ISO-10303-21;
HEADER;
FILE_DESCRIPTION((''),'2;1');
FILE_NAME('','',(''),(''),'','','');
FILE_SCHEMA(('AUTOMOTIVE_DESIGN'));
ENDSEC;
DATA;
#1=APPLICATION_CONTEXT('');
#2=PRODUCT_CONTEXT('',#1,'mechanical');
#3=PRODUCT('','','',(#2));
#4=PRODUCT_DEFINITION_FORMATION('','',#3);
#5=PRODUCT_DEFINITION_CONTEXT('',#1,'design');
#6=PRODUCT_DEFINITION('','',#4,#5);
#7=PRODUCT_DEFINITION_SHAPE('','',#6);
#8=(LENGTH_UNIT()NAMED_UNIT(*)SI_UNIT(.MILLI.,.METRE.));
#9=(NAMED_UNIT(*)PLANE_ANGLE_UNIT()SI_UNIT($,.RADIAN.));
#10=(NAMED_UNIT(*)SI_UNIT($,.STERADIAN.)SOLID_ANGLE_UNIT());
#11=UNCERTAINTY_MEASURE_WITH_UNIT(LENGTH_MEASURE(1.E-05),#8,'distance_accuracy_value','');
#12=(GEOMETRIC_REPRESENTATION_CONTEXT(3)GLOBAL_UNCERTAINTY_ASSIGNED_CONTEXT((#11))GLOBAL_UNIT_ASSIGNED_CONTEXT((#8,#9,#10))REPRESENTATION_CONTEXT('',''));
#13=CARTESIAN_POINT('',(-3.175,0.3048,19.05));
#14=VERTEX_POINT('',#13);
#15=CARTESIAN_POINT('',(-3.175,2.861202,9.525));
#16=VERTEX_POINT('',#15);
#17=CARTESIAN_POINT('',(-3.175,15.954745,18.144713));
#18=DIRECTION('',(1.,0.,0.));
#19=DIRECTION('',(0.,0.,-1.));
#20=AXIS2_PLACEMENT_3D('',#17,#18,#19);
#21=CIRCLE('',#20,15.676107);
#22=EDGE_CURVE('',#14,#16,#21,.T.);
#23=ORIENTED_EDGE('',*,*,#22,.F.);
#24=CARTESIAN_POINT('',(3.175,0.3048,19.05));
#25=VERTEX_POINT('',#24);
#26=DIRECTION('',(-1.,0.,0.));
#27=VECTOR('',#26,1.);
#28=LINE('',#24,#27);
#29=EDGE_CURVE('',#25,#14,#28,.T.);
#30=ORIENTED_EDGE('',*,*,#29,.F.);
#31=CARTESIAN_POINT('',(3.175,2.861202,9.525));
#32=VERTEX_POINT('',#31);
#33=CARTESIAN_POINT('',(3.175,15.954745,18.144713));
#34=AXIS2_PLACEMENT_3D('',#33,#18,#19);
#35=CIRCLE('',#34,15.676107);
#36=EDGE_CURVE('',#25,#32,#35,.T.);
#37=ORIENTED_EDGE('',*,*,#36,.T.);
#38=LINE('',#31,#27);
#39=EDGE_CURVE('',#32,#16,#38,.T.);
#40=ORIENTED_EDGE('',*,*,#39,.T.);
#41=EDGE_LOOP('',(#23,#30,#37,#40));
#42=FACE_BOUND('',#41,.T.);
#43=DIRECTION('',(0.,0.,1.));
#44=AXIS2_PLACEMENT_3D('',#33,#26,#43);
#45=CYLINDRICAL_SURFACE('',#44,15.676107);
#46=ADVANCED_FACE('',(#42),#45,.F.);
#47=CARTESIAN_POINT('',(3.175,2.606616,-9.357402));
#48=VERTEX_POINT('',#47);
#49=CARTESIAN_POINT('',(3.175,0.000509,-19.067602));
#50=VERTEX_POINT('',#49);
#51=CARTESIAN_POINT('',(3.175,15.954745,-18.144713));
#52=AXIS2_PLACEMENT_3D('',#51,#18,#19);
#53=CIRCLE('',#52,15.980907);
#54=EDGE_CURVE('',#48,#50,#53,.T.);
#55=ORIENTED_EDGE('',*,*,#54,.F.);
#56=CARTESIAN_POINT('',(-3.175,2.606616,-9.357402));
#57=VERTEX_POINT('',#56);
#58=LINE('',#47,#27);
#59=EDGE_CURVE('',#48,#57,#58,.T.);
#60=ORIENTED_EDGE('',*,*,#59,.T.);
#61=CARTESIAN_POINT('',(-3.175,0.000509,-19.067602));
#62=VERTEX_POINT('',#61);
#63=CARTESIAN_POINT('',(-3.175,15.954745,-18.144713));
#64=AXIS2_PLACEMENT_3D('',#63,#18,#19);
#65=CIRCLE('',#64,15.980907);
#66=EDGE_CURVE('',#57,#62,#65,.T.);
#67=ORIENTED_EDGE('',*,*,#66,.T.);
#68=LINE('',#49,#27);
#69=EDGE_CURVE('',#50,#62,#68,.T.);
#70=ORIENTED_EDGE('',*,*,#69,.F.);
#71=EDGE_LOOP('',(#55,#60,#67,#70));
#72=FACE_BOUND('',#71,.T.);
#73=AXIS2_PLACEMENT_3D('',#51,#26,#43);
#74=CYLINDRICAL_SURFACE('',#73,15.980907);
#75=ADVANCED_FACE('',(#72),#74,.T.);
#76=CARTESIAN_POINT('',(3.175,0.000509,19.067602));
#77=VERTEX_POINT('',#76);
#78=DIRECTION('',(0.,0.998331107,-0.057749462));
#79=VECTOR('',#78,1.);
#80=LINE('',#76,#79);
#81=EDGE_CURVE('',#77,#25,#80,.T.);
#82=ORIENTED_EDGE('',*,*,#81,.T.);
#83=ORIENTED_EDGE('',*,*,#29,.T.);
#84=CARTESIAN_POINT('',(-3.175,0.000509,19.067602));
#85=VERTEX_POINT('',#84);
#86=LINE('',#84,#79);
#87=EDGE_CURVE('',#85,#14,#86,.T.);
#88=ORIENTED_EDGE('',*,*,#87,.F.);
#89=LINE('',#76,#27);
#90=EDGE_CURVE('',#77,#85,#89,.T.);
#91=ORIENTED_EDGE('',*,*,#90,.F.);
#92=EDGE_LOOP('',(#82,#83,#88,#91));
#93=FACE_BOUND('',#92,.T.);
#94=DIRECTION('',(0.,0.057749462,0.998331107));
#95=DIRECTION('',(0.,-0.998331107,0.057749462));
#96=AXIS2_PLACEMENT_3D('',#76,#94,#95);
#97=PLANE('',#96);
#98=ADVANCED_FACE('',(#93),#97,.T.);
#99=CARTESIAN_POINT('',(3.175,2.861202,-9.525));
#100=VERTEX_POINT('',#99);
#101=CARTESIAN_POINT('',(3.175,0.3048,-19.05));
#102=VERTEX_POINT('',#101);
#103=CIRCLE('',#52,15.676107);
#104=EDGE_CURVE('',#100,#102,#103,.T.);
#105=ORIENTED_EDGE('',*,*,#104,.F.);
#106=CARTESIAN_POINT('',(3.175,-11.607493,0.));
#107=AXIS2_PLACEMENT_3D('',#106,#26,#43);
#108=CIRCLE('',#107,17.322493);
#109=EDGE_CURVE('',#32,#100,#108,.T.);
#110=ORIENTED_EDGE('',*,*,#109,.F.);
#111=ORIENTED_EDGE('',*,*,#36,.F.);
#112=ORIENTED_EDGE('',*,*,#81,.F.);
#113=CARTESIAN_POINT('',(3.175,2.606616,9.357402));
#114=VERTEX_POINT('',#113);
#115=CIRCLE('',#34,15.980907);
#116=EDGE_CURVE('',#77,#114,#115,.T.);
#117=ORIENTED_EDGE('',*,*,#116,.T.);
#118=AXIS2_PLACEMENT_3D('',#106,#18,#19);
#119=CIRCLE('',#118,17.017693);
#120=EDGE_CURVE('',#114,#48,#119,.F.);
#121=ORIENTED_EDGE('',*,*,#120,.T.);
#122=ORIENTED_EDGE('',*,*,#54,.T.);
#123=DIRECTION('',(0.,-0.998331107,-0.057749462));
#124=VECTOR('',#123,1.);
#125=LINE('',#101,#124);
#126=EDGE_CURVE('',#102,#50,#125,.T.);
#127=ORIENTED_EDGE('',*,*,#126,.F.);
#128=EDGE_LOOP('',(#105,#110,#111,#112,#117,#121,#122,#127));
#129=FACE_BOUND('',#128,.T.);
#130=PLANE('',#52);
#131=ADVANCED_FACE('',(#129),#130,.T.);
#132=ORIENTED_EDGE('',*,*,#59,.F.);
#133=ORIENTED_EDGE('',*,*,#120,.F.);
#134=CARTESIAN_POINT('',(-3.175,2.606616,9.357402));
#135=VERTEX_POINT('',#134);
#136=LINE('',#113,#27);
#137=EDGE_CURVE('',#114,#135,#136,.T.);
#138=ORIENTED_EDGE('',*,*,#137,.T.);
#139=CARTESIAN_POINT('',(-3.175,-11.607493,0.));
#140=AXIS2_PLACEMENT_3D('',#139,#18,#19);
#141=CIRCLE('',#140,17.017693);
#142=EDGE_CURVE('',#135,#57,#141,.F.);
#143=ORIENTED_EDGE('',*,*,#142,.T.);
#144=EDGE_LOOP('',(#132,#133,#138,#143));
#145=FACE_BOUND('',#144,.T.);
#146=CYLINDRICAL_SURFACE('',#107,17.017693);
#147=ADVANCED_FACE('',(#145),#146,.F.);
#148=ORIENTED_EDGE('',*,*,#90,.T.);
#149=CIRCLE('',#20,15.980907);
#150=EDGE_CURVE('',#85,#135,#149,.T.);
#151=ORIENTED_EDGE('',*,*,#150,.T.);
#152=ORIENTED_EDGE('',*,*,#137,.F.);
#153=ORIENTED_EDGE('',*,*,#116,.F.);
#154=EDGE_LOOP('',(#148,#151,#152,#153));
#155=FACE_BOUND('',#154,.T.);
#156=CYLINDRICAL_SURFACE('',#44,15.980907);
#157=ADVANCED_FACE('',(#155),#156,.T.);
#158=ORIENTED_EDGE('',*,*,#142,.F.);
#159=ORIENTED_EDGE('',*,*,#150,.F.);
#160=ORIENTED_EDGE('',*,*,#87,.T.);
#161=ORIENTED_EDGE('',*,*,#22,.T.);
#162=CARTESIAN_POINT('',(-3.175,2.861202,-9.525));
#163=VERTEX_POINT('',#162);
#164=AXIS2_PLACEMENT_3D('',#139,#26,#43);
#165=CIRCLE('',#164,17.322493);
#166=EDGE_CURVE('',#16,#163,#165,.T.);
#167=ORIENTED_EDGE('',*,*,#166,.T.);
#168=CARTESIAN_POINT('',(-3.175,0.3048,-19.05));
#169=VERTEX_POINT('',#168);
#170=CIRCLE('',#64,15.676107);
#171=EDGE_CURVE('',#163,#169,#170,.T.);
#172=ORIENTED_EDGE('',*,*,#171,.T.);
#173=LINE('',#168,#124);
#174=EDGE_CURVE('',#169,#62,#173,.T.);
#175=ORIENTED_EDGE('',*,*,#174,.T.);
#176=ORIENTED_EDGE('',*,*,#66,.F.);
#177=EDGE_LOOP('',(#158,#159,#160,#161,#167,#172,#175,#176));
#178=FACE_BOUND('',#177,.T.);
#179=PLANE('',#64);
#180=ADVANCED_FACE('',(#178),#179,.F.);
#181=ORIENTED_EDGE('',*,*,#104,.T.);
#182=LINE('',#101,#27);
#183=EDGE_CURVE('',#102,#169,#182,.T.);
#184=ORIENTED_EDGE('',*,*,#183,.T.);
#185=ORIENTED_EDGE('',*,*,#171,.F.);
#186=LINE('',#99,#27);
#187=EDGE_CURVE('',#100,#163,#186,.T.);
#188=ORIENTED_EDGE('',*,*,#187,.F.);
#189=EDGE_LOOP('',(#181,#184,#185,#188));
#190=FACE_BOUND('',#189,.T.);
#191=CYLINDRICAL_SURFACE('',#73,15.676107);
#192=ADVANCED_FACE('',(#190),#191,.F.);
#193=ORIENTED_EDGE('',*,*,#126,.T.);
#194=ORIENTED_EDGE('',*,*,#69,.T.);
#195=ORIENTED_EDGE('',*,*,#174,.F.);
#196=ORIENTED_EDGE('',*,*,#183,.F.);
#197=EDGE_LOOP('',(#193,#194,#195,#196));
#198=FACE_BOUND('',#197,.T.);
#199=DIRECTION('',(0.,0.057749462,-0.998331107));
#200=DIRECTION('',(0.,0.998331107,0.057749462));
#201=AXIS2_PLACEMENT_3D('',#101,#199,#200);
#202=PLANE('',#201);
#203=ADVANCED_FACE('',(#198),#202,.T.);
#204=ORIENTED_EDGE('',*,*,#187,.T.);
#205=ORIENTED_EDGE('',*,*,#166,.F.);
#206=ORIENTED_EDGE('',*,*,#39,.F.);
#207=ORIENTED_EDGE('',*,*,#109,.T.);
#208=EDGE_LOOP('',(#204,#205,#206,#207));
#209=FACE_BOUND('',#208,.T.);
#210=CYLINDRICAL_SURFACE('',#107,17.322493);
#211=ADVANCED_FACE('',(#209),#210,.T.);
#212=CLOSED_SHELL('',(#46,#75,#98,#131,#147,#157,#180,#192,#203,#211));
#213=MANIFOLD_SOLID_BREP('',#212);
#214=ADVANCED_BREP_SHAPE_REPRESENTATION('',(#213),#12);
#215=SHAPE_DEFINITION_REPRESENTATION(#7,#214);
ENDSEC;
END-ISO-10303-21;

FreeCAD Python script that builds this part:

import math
import FreeCAD as App
import Part
import Sketcher

V = App.Vector
Q = App.Units.Quantity

doc = App.newDocument("Part")
body = doc.addObject("PartDesign::Body", "Body")

# Sketch on YZ plane
sketch1 = body.newObject("Sketcher::SketchObject", "Sketch")
sketch1.AttachmentSupport = (doc.getObject("YZ_Plane"), [""])
sketch1.MapMode = "FlatFace"
sketch1.addGeometry(Part.ArcOfCircle(Part.Circle(V(15.954745, 18.144713, 0), V(0, 0, 1), 15.676107), math.radians(176.689358), math.radians(213.357624)), False)
sketch1.addGeometry(Part.LineSegment(V(0.3048, 19.05, 0), V(0.000509, 19.067602, 0)), False)
sketch1.addGeometry(Part.ArcOfCircle(Part.Circle(V(15.954745, 18.144713, 0), V(0, 0, 1), 15.980907), math.radians(176.689358), math.radians(213.357624)), False)
sketch1.addGeometry(Part.ArcOfCircle(Part.Circle(V(-11.607493, 0, 0), V(0, 0, 1), 17.017693), math.radians(-33.357624), math.radians(33.357624)), False)
sketch1.addGeometry(Part.ArcOfCircle(Part.Circle(V(15.954745, -18.144713, 0), V(0, 0, 1), 15.980907), math.radians(146.642376), math.radians(183.310642)), False)
sketch1.addGeometry(Part.LineSegment(V(0.000509, -19.067602, 0), V(0.3048, -19.05, 0)), False)
sketch1.addGeometry(Part.ArcOfCircle(Part.Circle(V(15.954745, -18.144713, 0), V(0, 0, 1), 15.676107), math.radians(146.642376), math.radians(183.310642)), False)
sketch1.addGeometry(Part.ArcOfCircle(Part.Circle(V(-11.607493, 0, 0), V(0, 0, 1), 17.322493), math.radians(-33.357624), math.radians(33.357624)), False)
sketch1.addConstraint(Sketcher.Constraint("Coincident", 0, 1, 1, 1))
sketch1.addConstraint(Sketcher.Constraint("Coincident", 1, 2, 2, 1))
sketch1.addConstraint(Sketcher.Constraint("Tangent", 2, 2, 3, 2))
sketch1.addConstraint(Sketcher.Constraint("Tangent", 3, 1, 4, 1))
sketch1.addConstraint(Sketcher.Constraint("Coincident", 4, 2, 5, 1))
sketch1.addConstraint(Sketcher.Constraint("Coincident", 5, 2, 6, 2))
sketch1.addConstraint(Sketcher.Constraint("Tangent", 6, 1, 7, 1))
sketch1.addConstraint(Sketcher.Constraint("Tangent", 7, 2, 0, 2))
sketch1.addConstraint(Sketcher.Constraint("Coincident", 2, 3, 0, 3))
sketch1.addConstraint(Sketcher.Constraint("Coincident", 6, 3, 4, 3))
sketch1.addConstraint(Sketcher.Constraint("Coincident", 7, 3, 3, 3))
sketch1.addConstraint(Sketcher.Constraint("Equal", 2, 4))
sketch1.addConstraint(Sketcher.Constraint("Symmetric", 0, 3, 4, 3, -1))
sketch1.addConstraint(Sketcher.Constraint("Vertical", 1, 2, 4, 2))
sketch1.addConstraint(Sketcher.Constraint("Vertical", 0, 1, 5, 2))
sketch1.addConstraint(Sketcher.Constraint("DistanceY", -1, 1, 0, 1, Q("0.75 in")))
sketch1.addConstraint(Sketcher.Constraint("Distance", 1, Q("0.012 in")))
sketch1.addConstraint(Sketcher.Constraint("DistanceX", -1, 1, 0, 1, Q("0.012 in")))
sketch1.addConstraint(Sketcher.Constraint("DistanceY", 6, 1, -1, 1, Q("0.375 in")))
sketch1.addConstraint(Sketcher.Constraint("Radius", 0, 15.676107))
sketch1.addConstraint(Sketcher.Constraint("Radius", 3, 17.017693))
sketch1.addConstraint(Sketcher.Constraint("DistanceX", 3, 3, 1, 2, 11.608002))
pad1 = body.newObject("PartDesign::Pad", "Pad")
pad1.Profile = sketch1
pad1.Length = Q("0.25 in")
pad1.Midplane = True

doc.recompute()
